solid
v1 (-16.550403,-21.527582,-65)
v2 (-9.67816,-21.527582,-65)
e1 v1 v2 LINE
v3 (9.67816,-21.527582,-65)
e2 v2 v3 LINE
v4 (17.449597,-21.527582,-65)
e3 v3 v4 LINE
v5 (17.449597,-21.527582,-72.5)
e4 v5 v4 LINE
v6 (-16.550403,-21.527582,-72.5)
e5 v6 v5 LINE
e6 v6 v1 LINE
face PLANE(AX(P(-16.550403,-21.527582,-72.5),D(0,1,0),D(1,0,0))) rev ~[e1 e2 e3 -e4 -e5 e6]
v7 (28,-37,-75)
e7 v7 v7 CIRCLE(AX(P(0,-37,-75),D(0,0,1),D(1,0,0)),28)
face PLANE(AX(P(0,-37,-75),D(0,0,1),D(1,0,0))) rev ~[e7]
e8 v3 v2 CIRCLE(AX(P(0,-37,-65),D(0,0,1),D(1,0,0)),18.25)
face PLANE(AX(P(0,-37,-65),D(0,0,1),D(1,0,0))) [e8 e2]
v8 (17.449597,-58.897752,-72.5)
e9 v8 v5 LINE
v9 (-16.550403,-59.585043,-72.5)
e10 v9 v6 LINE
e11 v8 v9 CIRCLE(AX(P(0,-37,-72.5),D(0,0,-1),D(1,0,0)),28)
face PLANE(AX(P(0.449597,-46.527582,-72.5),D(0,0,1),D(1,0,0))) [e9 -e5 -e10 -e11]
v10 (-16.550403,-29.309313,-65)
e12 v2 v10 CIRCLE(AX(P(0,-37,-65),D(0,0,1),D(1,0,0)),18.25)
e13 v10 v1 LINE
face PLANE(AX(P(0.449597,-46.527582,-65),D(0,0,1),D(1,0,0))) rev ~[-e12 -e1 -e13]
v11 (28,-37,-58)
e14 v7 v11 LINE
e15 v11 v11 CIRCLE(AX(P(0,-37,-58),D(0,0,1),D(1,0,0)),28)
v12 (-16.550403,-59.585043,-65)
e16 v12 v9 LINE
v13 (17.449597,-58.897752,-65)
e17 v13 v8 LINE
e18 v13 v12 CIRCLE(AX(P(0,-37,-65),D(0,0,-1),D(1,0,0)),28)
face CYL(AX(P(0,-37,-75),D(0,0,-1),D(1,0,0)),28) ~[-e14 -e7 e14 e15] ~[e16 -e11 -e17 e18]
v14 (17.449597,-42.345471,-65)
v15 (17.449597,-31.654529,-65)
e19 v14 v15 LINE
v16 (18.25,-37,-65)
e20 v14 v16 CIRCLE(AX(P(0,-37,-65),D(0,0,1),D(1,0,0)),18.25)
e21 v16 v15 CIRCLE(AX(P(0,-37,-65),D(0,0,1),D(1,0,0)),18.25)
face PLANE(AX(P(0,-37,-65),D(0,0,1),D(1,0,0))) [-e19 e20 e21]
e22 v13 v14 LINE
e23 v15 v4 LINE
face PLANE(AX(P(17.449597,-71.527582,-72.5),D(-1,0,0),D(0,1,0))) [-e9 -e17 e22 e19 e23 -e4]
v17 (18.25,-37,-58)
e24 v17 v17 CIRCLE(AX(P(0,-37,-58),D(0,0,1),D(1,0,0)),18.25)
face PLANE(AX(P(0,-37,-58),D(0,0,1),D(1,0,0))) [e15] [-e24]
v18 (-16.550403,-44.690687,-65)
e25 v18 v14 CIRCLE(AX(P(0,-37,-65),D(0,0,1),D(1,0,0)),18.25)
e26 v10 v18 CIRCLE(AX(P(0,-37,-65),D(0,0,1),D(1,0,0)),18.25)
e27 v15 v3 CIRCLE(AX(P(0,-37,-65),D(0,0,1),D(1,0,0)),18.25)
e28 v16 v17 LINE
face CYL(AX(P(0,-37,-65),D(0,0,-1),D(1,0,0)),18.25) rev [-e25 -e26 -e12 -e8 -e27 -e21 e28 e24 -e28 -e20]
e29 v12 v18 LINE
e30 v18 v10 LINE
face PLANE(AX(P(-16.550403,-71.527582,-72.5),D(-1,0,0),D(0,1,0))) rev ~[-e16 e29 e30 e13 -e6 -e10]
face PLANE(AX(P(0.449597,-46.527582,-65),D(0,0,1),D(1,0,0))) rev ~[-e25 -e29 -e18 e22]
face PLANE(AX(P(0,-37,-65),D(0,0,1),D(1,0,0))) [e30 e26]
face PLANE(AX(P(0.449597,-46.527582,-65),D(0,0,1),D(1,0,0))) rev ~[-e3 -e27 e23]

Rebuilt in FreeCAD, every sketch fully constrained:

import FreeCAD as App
import Part
import Sketcher
from FreeCAD import Vector
Q = App.Units.Quantity


def add_polygon(sketch, points):
    """Adds a closed chain of lines whose ends are joined by coincident constraints."""
    first, n = sketch.GeometryCount, len(points)
    for a, b in zip(points, points[1:] + points[:1]):
        sketch.addGeometry(Part.LineSegment(App.Vector(*a, 0), App.Vector(*b, 0)), False)
    for i in range(n):
        sketch.addConstraint(Sketcher.Constraint("Coincident", first + i, 2, first + (i + 1) % n, 1))

doc = App.newDocument("Part")
params = doc.addObject("Spreadsheet::Sheet", "Params")
for row, (alias, value) in enumerate([
    ("sketch1_width", "34 mm"),
    ("sketch1_height", "50 mm"),
    ("pad1_length", "7.5 mm"),
    ("sketch2_diameter", "36.5 mm"),
    ("pad2_length", "7 mm"),
    ("sketch3_diameter", "56 mm"),
    ("pad3_length", "17 mm"),
], start=1):
    params.set(f"A{row}", alias)
    params.set(f"B{row}", "=" + value)
    params.setAlias(f"B{row}", alias)

body = doc.addObject("PartDesign::Body", "Body")

# Sketch on XY plane
sketch1 = body.newObject("Sketcher::SketchObject", "Sketch")
sketch1.AttachmentSupport = (doc.getObject("XY_Plane"), [""])
sketch1.MapMode = "FlatFace"
add_polygon(sketch1, [(-17, 20), (-17, -30), (17, -30), (17, 20)])  # lines 0-3
sketch1.addConstraint([
    Sketcher.Constraint("Vertical", 0),
    Sketcher.Constraint("Horizontal", 1),
    Sketcher.Constraint("Vertical", 2),
    Sketcher.Constraint("Horizontal", 3),
    Sketcher.Constraint("DistanceX", 1, 1, 1, 2, Q("34 mm")),
    Sketcher.Constraint("DistanceY", 0, 2, 0, 1, Q("50 mm")),
    Sketcher.Constraint("DistanceY", 0, 2, -1, 1, Q("29.527582 mm")),
    Sketcher.Constraint("DistanceX", 0, 2, -1, 1, Q("16.550403 mm")),
])
sketch1.setExpression("Constraints[8]", "Params.sketch1_width")
sketch1.setExpression("Constraints[9]", "Params.sketch1_height")
pad1 = body.newObject("PartDesign::Pad", "Pad")
pad1.Profile = sketch1
pad1.setExpression("Length", "Params.pad1_length")
body2 = doc.addObject("PartDesign::Body", "Body001")
doc.recompute()

body.Placement = App.Placement(Vector(0, -42, -72.5), App.Rotation(Vector(0, 0, 1), 0))
boolean = body2.newObject("PartDesign::Boolean", "Boolean")
boolean.Type = "Fuse"
boolean.addObjects([body])
body3 = doc.addObject("PartDesign::Body", "Body002")

# Sketch on XY plane
sketch2 = body3.newObject("Sketcher::SketchObject", "Sketch001")
sketch2.AttachmentSupport = (doc.getObject("XY_Plane002"), [""])
sketch2.MapMode = "FlatFace"
sketch2.AttachmentOffset = App.Placement(Vector(0, 0, 2), App.Rotation())
sketch2.addGeometry(Part.Circle(Vector(0, -34, 0), Vector(0, 0, 1), 18), False)
sketch2.addConstraint([
    Sketcher.Constraint("PointOnObject", 0, 3, -2),
    Sketcher.Constraint("Diameter", 0, Q("36.5 mm")),
    Sketcher.Constraint("DistanceY", 0, 3, -1, 1, Q("34 mm")),
])
sketch2.setExpression("Constraints[1]", "Params.sketch2_diameter")
pad2 = body3.newObject("PartDesign::Pad", "Pad001")
pad2.Profile = sketch2
pad2.setExpression("Length", "Params.pad2_length")
body4 = doc.addObject("PartDesign::Body", "Body003")
doc.recompute()

body3.Placement = App.Placement(Vector(0, -3, -67), App.Rotation(Vector(0, 0, 1), 0))
boolean2 = body4.newObject("PartDesign::Boolean", "Boolean001")
boolean2.Type = "Fuse"
boolean2.addObjects([body3])
body5 = doc.addObject("PartDesign::Body", "Body004")

# Sketch on XY plane
sketch3 = body5.newObject("Sketcher::SketchObject", "Sketch002")
sketch3.AttachmentSupport = (doc.getObject("XY_Plane004"), [""])
sketch3.MapMode = "FlatFace"
sketch3.addGeometry(Part.Circle(Vector(0, -34, 0), Vector(0, 0, 1), 28), False)
sketch3.addConstraint([
    Sketcher.Constraint("PointOnObject", 0, 3, -2),
    Sketcher.Constraint("Diameter", 0, Q("56 mm")),
    Sketcher.Constraint("DistanceY", 0, 3, -1, 1, Q("34 mm")),
])
sketch3.setExpression("Constraints[1]", "Params.sketch3_diameter")
pad3 = body5.newObject("PartDesign::Pad", "Pad002")
pad3.Profile = sketch3
pad3.setExpression("Length", "Params.pad3_length")
body6 = doc.addObject("PartDesign::Body", "Body005")
doc.recompute()

body5.Placement = App.Placement(Vector(0, -3, -75), App.Rotation(Vector(0, 0, 1), 0))
boolean3 = body6.newObject("PartDesign::Boolean", "Boolean002")
boolean3.Type = "Fuse"
boolean3.addObjects([body5])
doc.recompute()

boolean4 = body6.newObject("PartDesign::Boolean", "Boolean003")
boolean4.Type = "Cut"
boolean4.addObjects([body4])
doc.recompute()

boolean5 = body6.newObject("PartDesign::Boolean", "Boolean004")
boolean5.Type = "Cut"
boolean5.addObjects([body2])

doc.recompute()
